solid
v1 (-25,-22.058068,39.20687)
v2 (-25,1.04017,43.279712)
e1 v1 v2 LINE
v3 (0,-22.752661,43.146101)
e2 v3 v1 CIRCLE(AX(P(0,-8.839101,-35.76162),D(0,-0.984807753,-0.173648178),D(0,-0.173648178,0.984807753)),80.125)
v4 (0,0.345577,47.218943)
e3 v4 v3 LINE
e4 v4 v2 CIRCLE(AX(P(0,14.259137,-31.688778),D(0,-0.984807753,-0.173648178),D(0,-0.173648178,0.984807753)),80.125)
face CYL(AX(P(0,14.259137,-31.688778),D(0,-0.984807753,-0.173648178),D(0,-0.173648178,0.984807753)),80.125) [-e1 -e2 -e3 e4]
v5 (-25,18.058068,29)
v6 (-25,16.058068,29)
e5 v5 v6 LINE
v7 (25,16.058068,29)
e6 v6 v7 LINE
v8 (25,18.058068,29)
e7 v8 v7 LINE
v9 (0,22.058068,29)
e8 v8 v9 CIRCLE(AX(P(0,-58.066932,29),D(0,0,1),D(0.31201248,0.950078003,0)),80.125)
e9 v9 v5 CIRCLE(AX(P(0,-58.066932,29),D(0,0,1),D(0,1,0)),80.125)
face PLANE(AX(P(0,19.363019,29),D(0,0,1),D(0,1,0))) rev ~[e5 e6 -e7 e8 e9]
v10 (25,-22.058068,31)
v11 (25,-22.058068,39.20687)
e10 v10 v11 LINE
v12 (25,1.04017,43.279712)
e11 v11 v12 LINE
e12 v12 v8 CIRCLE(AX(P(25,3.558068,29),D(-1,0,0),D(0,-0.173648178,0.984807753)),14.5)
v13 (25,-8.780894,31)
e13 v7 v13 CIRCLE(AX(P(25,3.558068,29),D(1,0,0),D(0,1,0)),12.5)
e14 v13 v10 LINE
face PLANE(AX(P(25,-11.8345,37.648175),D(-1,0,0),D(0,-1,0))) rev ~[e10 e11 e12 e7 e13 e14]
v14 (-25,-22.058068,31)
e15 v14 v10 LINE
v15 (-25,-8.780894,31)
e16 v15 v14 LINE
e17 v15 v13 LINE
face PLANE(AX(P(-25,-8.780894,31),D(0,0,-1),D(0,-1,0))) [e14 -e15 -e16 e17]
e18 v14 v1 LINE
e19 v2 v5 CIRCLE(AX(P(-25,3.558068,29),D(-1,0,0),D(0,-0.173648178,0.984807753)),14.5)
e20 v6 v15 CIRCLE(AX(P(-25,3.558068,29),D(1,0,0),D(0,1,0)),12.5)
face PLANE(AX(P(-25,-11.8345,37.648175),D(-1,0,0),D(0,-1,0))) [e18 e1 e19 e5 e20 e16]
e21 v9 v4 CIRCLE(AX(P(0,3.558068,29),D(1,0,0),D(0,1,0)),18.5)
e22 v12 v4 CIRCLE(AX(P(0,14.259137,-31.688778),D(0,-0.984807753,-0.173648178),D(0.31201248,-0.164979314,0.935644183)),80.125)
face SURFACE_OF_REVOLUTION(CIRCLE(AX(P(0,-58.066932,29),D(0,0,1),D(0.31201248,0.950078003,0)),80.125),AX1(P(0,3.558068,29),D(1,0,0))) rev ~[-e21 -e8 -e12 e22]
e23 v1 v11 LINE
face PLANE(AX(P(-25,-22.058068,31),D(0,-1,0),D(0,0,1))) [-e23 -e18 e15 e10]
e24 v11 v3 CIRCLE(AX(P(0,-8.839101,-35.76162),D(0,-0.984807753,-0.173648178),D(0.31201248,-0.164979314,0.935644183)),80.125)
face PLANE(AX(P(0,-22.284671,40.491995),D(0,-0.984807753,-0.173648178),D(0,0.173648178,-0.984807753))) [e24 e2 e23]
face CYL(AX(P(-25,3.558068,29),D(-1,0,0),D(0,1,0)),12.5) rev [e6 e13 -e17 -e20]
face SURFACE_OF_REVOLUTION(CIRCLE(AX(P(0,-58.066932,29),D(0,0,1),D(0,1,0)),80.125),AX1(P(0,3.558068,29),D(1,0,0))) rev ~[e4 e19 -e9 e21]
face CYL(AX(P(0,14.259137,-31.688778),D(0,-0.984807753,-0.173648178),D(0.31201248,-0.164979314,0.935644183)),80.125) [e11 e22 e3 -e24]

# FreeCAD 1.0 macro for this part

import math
import FreeCAD as App
import Part
import Sketcher
from FreeCAD import Vector
Q = App.Units.Quantity

doc = App.newDocument("Part")
body = doc.addObject("PartDesign::Body", "Body")

# Sketch on YZ plane
sketch1 = body.newObject("Sketcher::SketchObject", "Sketch")
sketch1.AttachmentSupport = (doc.getObject("YZ_Plane"), [""])
sketch1.MapMode = "FlatFace"
sketch1.AttachmentOffset = App.Placement(Vector(0, 0, -25), App.Rotation())
sketch1.addGeometry([
    Part.LineSegment(Vector(-22.1, 31, 0), Vector(-22.1, 39.2, 0)),  # 0
    Part.LineSegment(Vector(-22.1, 39.2, 0), Vector(1, 43.3, 0)),  # 1
    Part.ArcOfCircle(Part.Circle(Vector(3.6, 29, 0), Vector(0, 0, 1), 14.5), math.radians(0), math.radians(100)),  # 2
    Part.LineSegment(Vector(18.1, 29, 0), Vector(16.1, 29, 0)),  # 3
    Part.ArcOfCircle(Part.Circle(Vector(3.6, 29, 0), Vector(0, 0, 1), 12.5), math.radians(0), math.radians(171)),  # 4
    Part.LineSegment(Vector(-8.8, 31, 0), Vector(-22.1, 31, 0)),  # 5
], False)
sketch1.addConstraint([
    Sketcher.Constraint("Coincident", 0, 2, 1, 1),
    Sketcher.Constraint("Tangent", 1, 2, 2, 2),
    Sketcher.Constraint("Coincident", 2, 1, 3, 1),
    Sketcher.Constraint("Coincident", 3, 2, 4, 1),
    Sketcher.Constraint("Coincident", 4, 2, 5, 1),
    Sketcher.Constraint("Coincident", 5, 2, 0, 1),
    Sketcher.Constraint("Vertical", 0),
    Sketcher.Constraint("Horizontal", 3),
    Sketcher.Constraint("Horizontal", 5),
    Sketcher.Constraint("Coincident", 4, 3, 2, 3),
    Sketcher.Constraint("Horizontal", 4, 3, 2, 1),
    Sketcher.Constraint("Radius", 2, Q("14.5 mm")),
    Sketcher.Constraint("Radius", 4, Q("12.5 mm")),
    Sketcher.Constraint("Angle", 1, Q("10 deg")),
    Sketcher.Constraint("DistanceY", -1, 1, 2, 3, Q("29 mm")),
    Sketcher.Constraint("DistanceY", -1, 1, 4, 2, Q("31 mm")),
    Sketcher.Constraint("DistanceY", 0, 1, 0, 2, Q("8.20687 mm")),
    Sketcher.Constraint("DistanceX", -1, 1, 2, 3, Q("3.558068 mm")),
])
pad1 = body.newObject("PartDesign::Pad", "Pad")
pad1.Profile = sketch1
pad1.Length = 50

# Sketch on XY plane
sketch2 = body.newObject("Sketcher::SketchObject", "Sketch001")
sketch2.AttachmentSupport = (doc.getObject("XY_Plane"), [""])
sketch2.MapMode = "FlatFace"
sketch2.AttachmentOffset = App.Placement(Vector(0, 0, 29), App.Rotation())
sketch2.addGeometry([
    Part.ArcOfCircle(Part.Circle(Vector(0, -58, 0), Vector(0, 0, 1), 80), math.radians(71.82), math.radians(90)),
    Part.ArcOfCircle(Part.Circle(Vector(0, -58, 0), Vector(0, 0, 1), 80), math.radians(90), math.radians(108.18)),
    Part.LineSegment(Vector(-25, 18, 0), Vector(25, 18, 0)),
], False)
sketch2.addConstraint([
    Sketcher.Constraint("Tangent", 0, 2, 1, 1),
    Sketcher.Constraint("Coincident", 1, 2, 2, 1),
    Sketcher.Constraint("Coincident", 2, 2, 0, 1),
    Sketcher.Constraint("Horizontal", 2),
    Sketcher.Constraint("Equal", 0, 1),
    Sketcher.Constraint("PointOnObject", 0, 3, -2),
    Sketcher.Constraint("PointOnObject", 0, 2, -2),
    Sketcher.Constraint("DistanceX", 2, 1, 2, 2, Q("50 mm")),
    Sketcher.Constraint("Radius", 0, Q("80.125 mm")),
    Sketcher.Constraint("DistanceY", 0, 3, -1, 1, Q("58.066932 mm")),
])

# Sketch on YZ plane
sketch3 = body.newObject("Sketcher::SketchObject", "Sketch002")
sketch3.AttachmentSupport = (doc.getObject("YZ_Plane"), [""])
sketch3.MapMode = "FlatFace"
sketch3.AttachmentOffset = App.Placement(Vector(0, 0, 25), App.Rotation())
sketch3.addGeometry([
    Part.ArcOfCircle(Part.Circle(Vector(4, 29, 0), Vector(0, 0, 1), 14), math.radians(0), math.radians(100)),
    Part.LineSegment(Vector(1, 43, 0), Vector(-22, 39, 0)),
], False)
sketch3.addConstraint([
    Sketcher.Constraint("Tangent", 0, 2, 1, 1),
    Sketcher.Constraint("Radius", 0, Q("14.5 mm")),
    Sketcher.Constraint("Angle", 1, Q("-170 deg")),
    Sketcher.Constraint("DistanceY", -1, 1, 0, 3, Q("29 mm")),
    Sketcher.Constraint("DistanceY", -1, 1, 0, 1, Q("29 mm")),
    Sketcher.Constraint("DistanceX", -1, 1, 0, 3, Q("3.558068 mm")),
    Sketcher.Constraint("DistanceX", 1, 2, -1, 1, Q("22.058068 mm")),
])
doc.recompute()

additivepipe = body.newObject("PartDesign::AdditivePipe", "AdditivePipe")
additivepipe.Profile = sketch2
additivepipe.Spine = (sketch3, ["Edge1", "Edge2"])

doc.recompute()
